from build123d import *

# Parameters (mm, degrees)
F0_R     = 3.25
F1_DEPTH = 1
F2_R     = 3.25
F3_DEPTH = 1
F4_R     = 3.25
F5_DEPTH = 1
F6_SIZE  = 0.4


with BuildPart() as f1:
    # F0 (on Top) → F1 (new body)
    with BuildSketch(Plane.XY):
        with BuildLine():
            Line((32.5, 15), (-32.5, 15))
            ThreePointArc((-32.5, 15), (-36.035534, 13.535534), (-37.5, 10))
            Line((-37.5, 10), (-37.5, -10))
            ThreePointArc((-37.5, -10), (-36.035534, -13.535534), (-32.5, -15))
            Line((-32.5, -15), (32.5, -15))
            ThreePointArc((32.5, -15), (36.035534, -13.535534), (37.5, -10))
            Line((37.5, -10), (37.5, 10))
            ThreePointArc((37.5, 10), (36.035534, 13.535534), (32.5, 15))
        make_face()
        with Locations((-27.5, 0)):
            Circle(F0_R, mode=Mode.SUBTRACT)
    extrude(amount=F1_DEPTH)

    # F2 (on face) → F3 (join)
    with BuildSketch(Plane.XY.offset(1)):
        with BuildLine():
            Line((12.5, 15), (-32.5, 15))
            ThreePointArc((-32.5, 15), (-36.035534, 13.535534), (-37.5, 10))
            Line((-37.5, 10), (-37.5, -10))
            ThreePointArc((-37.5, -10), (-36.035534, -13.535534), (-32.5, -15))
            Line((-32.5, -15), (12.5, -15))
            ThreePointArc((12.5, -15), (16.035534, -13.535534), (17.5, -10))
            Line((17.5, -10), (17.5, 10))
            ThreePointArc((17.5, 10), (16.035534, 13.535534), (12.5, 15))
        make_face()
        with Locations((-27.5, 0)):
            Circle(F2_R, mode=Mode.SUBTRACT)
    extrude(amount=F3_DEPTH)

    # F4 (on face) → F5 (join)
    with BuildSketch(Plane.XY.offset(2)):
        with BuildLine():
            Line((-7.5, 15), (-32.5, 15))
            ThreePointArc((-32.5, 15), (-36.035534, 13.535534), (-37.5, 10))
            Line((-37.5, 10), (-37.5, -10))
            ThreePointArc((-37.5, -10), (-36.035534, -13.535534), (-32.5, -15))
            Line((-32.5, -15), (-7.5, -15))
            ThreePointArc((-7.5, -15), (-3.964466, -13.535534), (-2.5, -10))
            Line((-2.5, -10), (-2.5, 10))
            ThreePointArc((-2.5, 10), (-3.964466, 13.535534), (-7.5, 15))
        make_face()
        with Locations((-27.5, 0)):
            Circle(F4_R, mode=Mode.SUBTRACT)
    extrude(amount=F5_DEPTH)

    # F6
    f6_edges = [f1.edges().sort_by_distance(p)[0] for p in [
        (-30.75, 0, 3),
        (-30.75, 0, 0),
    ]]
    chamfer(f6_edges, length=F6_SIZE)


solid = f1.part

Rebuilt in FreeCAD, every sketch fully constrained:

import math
import FreeCAD as App
import Part
import Sketcher

V = App.Vector
Q = App.Units.Quantity


def edges_at(feature, points):
    """Names of the edges that pass closest to the given points."""
    edges = feature.Shape.Edges
    near = lambda p: min(range(len(edges)), key=lambda i: edges[i].distToShape(Part.Vertex(*p))[0])
    return sorted({f"Edge{near(p) + 1}" for p in points})

doc = App.newDocument("Part")
body = doc.addObject("PartDesign::Body", "Body")

sketch1 = body.newObject("Sketcher::SketchObject", "Sketch")
sketch1.AttachmentSupport = (doc.getObject("XY_Plane"), [""])
sketch1.MapMode = "FlatFace"
sketch1.addGeometry(Part.LineSegment(V(32.5, 15, 0), V(-32.5, 15, 0)), False)
sketch1.addGeometry(Part.ArcOfCircle(Part.Circle(V(-32.5, 10, 0), V(0, 0, 1), 5), math.radians(89.999996), math.radians(180.000004)), False)
sketch1.addGeometry(Part.LineSegment(V(-37.5, 10, 0), V(-37.5, -10, 0)), False)
sketch1.addGeometry(Part.ArcOfCircle(Part.Circle(V(-32.5, -10, 0), V(0, 0, 1), 5), math.radians(179.999996), math.radians(270.000004)), False)
sketch1.addGeometry(Part.LineSegment(V(-32.5, -15, 0), V(32.5, -15, 0)), False)
sketch1.addGeometry(Part.ArcOfCircle(Part.Circle(V(32.5, -10, 0), V(0, 0, 1), 5), math.radians(-90.000004), math.radians(0.000004)), False)
sketch1.addGeometry(Part.LineSegment(V(37.5, -10, 0), V(37.5, 10, 0)), False)
sketch1.addGeometry(Part.ArcOfCircle(Part.Circle(V(32.5, 10, 0), V(0, 0, 1), 5), math.radians(-0.000004), math.radians(90.000004)), False)
sketch1.addGeometry(Part.Circle(V(-27.5, 0, 0), V(0, 0, 1), 3.25), False)
sketch1.addConstraint(Sketcher.Constraint("Tangent", 0, 2, 1, 1))
sketch1.addConstraint(Sketcher.Constraint("Tangent", 1, 2, 2, 1))
sketch1.addConstraint(Sketcher.Constraint("Tangent", 2, 2, 3, 1))
sketch1.addConstraint(Sketcher.Constraint("Tangent", 3, 2, 4, 1))
sketch1.addConstraint(Sketcher.Constraint("Tangent", 4, 2, 5, 1))
sketch1.addConstraint(Sketcher.Constraint("Tangent", 5, 2, 6, 1))
sketch1.addConstraint(Sketcher.Constraint("Tangent", 6, 2, 7, 1))
sketch1.addConstraint(Sketcher.Constraint("Tangent", 7, 2, 0, 1))
sketch1.addConstraint(Sketcher.Constraint("Horizontal", 0))
sketch1.addConstraint(Sketcher.Constraint("Vertical", 2))
sketch1.addConstraint(Sketcher.Constraint("Horizontal", 4))
sketch1.addConstraint(Sketcher.Constraint("Vertical", 6))
sketch1.addConstraint(Sketcher.Constraint("Equal", 1, 3))
sketch1.addConstraint(Sketcher.Constraint("Equal", 3, 5))
sketch1.addConstraint(Sketcher.Constraint("Equal", 5, 7))
sketch1.addConstraint(Sketcher.Constraint("Symmetric", 1, 3, 5, 3, -1, 1))
sketch1.addConstraint(Sketcher.Constraint("PointOnObject", 8, 3, -1))
sketch1.addConstraint(Sketcher.Constraint("Radius", 1, Q("5 mm")))
sketch1.addConstraint(Sketcher.Constraint("Diameter", 8, Q("6.5 mm")))
sketch1.addConstraint(Sketcher.Constraint("DistanceX", 0, 2, 0, 1, Q("65 mm")))
sketch1.addConstraint(Sketcher.Constraint("DistanceY", 2, 2, 2, 1, Q("20 mm")))
sketch1.addConstraint(Sketcher.Constraint("DistanceX", 1, 3, 8, 3, Q("5 mm")))
pad1 = body.newObject("PartDesign::Pad", "Pad")
pad1.Profile = sketch1
pad1.Length = 1

sketch2 = body.newObject("Sketcher::SketchObject", "Sketch001")
sketch2.AttachmentSupport = (doc.getObject("XY_Plane"), [""])
sketch2.MapMode = "FlatFace"
sketch2.AttachmentOffset = App.Placement(V(0, 0, 1), App.Rotation())
sketch2.addGeometry(Part.LineSegment(V(12.5, 15, 0), V(-32.5, 15, 0)), False)
sketch2.addGeometry(Part.ArcOfCircle(Part.Circle(V(-32.5, 10, 0), V(0, 0, 1), 5), math.radians(89.999996), math.radians(180.000004)), False)
sketch2.addGeometry(Part.LineSegment(V(-37.5, 10, 0), V(-37.5, -10, 0)), False)
sketch2.addGeometry(Part.ArcOfCircle(Part.Circle(V(-32.5, -10, 0), V(0, 0, 1), 5), math.radians(179.999996), math.radians(270.000004)), False)
sketch2.addGeometry(Part.LineSegment(V(-32.5, -15, 0), V(12.5, -15, 0)), False)
sketch2.addGeometry(Part.ArcOfCircle(Part.Circle(V(12.5, -10, 0), V(0, 0, 1), 5), math.radians(-90.000004), math.radians(0.000004)), False)
sketch2.addGeometry(Part.LineSegment(V(17.5, -10, 0), V(17.5, 10, 0)), False)
sketch2.addGeometry(Part.ArcOfCircle(Part.Circle(V(12.5, 10, 0), V(0, 0, 1), 5), math.radians(-0.000004), math.radians(90.000004)), False)
sketch2.addGeometry(Part.Circle(V(-27.5, 0, 0), V(0, 0, 1), 3.25), False)
sketch2.addConstraint(Sketcher.Constraint("Tangent", 0, 2, 1, 1))
sketch2.addConstraint(Sketcher.Constraint("Tangent", 1, 2, 2, 1))
sketch2.addConstraint(Sketcher.Constraint("Tangent", 2, 2, 3, 1))
sketch2.addConstraint(Sketcher.Constraint("Tangent", 3, 2, 4, 1))
sketch2.addConstraint(Sketcher.Constraint("Tangent", 4, 2, 5, 1))
sketch2.addConstraint(Sketcher.Constraint("Tangent", 5, 2, 6, 1))
sketch2.addConstraint(Sketcher.Constraint("Tangent", 6, 2, 7, 1))
sketch2.addConstraint(Sketcher.Constraint("Tangent", 7, 2, 0, 1))
sketch2.addConstraint(Sketcher.Constraint("Horizontal", 0))
sketch2.addConstraint(Sketcher.Constraint("Vertical", 2))
sketch2.addConstraint(Sketcher.Constraint("Horizontal", 4))
sketch2.addConstraint(Sketcher.Constraint("Vertical", 6))
sketch2.addConstraint(Sketcher.Constraint("Equal", 1, 3))
sketch2.addConstraint(Sketcher.Constraint("Equal", 3, 5))
sketch2.addConstraint(Sketcher.Constraint("Equal", 5, 7))
sketch2.addConstraint(Sketcher.Constraint("PointOnObject", 8, 3, -1))
sketch2.addConstraint(Sketcher.Constraint("Radius", 1, Q("5 mm")))
sketch2.addConstraint(Sketcher.Constraint("Diameter", 8, Q("6.5 mm")))
sketch2.addConstraint(Sketcher.Constraint("DistanceX", 0, 2, 0, 1, Q("45 mm")))
sketch2.addConstraint(Sketcher.Constraint("DistanceY", 2, 2, 2, 1, Q("20 mm")))
sketch2.addConstraint(Sketcher.Constraint("DistanceY", -1, 1, 1, 3, Q("10 mm")))
sketch2.addConstraint(Sketcher.Constraint("DistanceX", 1, 3, 8, 3, Q("5 mm")))
sketch2.addConstraint(Sketcher.Constraint("DistanceX", 1, 3, -1, 1, Q("32.5 mm")))
pad2 = body.newObject("PartDesign::Pad", "Pad001")
pad2.Profile = sketch2
pad2.Length = 1

sketch3 = body.newObject("Sketcher::SketchObject", "Sketch002")
sketch3.AttachmentSupport = (doc.getObject("XY_Plane"), [""])
sketch3.MapMode = "FlatFace"
sketch3.AttachmentOffset = App.Placement(V(0, 0, 2), App.Rotation())
sketch3.addGeometry(Part.LineSegment(V(-7.5, 15, 0), V(-32.5, 15, 0)), False)
sketch3.addGeometry(Part.ArcOfCircle(Part.Circle(V(-32.5, 10, 0), V(0, 0, 1), 5), math.radians(89.999996), math.radians(180.000004)), False)
sketch3.addGeometry(Part.LineSegment(V(-37.5, 10, 0), V(-37.5, -10, 0)), False)
sketch3.addGeometry(Part.ArcOfCircle(Part.Circle(V(-32.5, -10, 0), V(0, 0, 1), 5), math.radians(179.999996), math.radians(270.000004)), False)
sketch3.addGeometry(Part.LineSegment(V(-32.5, -15, 0), V(-7.5, -15, 0)), False)
sketch3.addGeometry(Part.ArcOfCircle(Part.Circle(V(-7.5, -10, 0), V(0, 0, 1), 5), math.radians(-90.000004), math.radians(0.000004)), False)
sketch3.addGeometry(Part.LineSegment(V(-2.5, -10, 0), V(-2.5, 10, 0)), False)
sketch3.addGeometry(Part.ArcOfCircle(Part.Circle(V(-7.5, 10, 0), V(0, 0, 1), 5), math.radians(-0.000004), math.radians(90.000004)), False)
sketch3.addGeometry(Part.Circle(V(-27.5, 0, 0), V(0, 0, 1), 3.25), False)
sketch3.addConstraint(Sketcher.Constraint("Tangent", 0, 2, 1, 1))
sketch3.addConstraint(Sketcher.Constraint("Tangent", 1, 2, 2, 1))
sketch3.addConstraint(Sketcher.Constraint("Tangent", 2, 2, 3, 1))
sketch3.addConstraint(Sketcher.Constraint("Tangent", 3, 2, 4, 1))
sketch3.addConstraint(Sketcher.Constraint("Tangent", 4, 2, 5, 1))
sketch3.addConstraint(Sketcher.Constraint("Tangent", 5, 2, 6, 1))
sketch3.addConstraint(Sketcher.Constraint("Tangent", 6, 2, 7, 1))
sketch3.addConstraint(Sketcher.Constraint("Tangent", 7, 2, 0, 1))
sketch3.addConstraint(Sketcher.Constraint("Horizontal", 0))
sketch3.addConstraint(Sketcher.Constraint("Vertical", 2))
sketch3.addConstraint(Sketcher.Constraint("Horizontal", 4))
sketch3.addConstraint(Sketcher.Constraint("Vertical", 6))
sketch3.addConstraint(Sketcher.Constraint("Equal", 1, 3))
sketch3.addConstraint(Sketcher.Constraint("Equal", 3, 5))
sketch3.addConstraint(Sketcher.Constraint("Equal", 5, 7))
sketch3.addConstraint(Sketcher.Constraint("PointOnObject", 8, 3, -1))
sketch3.addConstraint(Sketcher.Constraint("Radius", 1, Q("5 mm")))
sketch3.addConstraint(Sketcher.Constraint("Diameter", 8, Q("6.5 mm")))
sketch3.addConstraint(Sketcher.Constraint("DistanceX", 0, 2, 0, 1, Q("25 mm")))
sketch3.addConstraint(Sketcher.Constraint("DistanceY", 2, 2, 2, 1, Q("20 mm")))
sketch3.addConstraint(Sketcher.Constraint("DistanceY", -1, 1, 1, 3, Q("10 mm")))
sketch3.addConstraint(Sketcher.Constraint("DistanceX", 1, 3, 8, 3, Q("5 mm")))
sketch3.addConstraint(Sketcher.Constraint("DistanceX", 1, 3, -1, 1, Q("32.5 mm")))
pad3 = body.newObject("PartDesign::Pad", "Pad002")
pad3.Profile = sketch3
pad3.Length = 1
doc.recompute()

chamfer = body.newObject("PartDesign::Chamfer", "Chamfer")
chamfer.Base = (pad3, edges_at(pad3, [(-30.75, 0, 3), (-30.75, 0, 0)]))
chamfer.Size = 0.4

doc.recompute()
